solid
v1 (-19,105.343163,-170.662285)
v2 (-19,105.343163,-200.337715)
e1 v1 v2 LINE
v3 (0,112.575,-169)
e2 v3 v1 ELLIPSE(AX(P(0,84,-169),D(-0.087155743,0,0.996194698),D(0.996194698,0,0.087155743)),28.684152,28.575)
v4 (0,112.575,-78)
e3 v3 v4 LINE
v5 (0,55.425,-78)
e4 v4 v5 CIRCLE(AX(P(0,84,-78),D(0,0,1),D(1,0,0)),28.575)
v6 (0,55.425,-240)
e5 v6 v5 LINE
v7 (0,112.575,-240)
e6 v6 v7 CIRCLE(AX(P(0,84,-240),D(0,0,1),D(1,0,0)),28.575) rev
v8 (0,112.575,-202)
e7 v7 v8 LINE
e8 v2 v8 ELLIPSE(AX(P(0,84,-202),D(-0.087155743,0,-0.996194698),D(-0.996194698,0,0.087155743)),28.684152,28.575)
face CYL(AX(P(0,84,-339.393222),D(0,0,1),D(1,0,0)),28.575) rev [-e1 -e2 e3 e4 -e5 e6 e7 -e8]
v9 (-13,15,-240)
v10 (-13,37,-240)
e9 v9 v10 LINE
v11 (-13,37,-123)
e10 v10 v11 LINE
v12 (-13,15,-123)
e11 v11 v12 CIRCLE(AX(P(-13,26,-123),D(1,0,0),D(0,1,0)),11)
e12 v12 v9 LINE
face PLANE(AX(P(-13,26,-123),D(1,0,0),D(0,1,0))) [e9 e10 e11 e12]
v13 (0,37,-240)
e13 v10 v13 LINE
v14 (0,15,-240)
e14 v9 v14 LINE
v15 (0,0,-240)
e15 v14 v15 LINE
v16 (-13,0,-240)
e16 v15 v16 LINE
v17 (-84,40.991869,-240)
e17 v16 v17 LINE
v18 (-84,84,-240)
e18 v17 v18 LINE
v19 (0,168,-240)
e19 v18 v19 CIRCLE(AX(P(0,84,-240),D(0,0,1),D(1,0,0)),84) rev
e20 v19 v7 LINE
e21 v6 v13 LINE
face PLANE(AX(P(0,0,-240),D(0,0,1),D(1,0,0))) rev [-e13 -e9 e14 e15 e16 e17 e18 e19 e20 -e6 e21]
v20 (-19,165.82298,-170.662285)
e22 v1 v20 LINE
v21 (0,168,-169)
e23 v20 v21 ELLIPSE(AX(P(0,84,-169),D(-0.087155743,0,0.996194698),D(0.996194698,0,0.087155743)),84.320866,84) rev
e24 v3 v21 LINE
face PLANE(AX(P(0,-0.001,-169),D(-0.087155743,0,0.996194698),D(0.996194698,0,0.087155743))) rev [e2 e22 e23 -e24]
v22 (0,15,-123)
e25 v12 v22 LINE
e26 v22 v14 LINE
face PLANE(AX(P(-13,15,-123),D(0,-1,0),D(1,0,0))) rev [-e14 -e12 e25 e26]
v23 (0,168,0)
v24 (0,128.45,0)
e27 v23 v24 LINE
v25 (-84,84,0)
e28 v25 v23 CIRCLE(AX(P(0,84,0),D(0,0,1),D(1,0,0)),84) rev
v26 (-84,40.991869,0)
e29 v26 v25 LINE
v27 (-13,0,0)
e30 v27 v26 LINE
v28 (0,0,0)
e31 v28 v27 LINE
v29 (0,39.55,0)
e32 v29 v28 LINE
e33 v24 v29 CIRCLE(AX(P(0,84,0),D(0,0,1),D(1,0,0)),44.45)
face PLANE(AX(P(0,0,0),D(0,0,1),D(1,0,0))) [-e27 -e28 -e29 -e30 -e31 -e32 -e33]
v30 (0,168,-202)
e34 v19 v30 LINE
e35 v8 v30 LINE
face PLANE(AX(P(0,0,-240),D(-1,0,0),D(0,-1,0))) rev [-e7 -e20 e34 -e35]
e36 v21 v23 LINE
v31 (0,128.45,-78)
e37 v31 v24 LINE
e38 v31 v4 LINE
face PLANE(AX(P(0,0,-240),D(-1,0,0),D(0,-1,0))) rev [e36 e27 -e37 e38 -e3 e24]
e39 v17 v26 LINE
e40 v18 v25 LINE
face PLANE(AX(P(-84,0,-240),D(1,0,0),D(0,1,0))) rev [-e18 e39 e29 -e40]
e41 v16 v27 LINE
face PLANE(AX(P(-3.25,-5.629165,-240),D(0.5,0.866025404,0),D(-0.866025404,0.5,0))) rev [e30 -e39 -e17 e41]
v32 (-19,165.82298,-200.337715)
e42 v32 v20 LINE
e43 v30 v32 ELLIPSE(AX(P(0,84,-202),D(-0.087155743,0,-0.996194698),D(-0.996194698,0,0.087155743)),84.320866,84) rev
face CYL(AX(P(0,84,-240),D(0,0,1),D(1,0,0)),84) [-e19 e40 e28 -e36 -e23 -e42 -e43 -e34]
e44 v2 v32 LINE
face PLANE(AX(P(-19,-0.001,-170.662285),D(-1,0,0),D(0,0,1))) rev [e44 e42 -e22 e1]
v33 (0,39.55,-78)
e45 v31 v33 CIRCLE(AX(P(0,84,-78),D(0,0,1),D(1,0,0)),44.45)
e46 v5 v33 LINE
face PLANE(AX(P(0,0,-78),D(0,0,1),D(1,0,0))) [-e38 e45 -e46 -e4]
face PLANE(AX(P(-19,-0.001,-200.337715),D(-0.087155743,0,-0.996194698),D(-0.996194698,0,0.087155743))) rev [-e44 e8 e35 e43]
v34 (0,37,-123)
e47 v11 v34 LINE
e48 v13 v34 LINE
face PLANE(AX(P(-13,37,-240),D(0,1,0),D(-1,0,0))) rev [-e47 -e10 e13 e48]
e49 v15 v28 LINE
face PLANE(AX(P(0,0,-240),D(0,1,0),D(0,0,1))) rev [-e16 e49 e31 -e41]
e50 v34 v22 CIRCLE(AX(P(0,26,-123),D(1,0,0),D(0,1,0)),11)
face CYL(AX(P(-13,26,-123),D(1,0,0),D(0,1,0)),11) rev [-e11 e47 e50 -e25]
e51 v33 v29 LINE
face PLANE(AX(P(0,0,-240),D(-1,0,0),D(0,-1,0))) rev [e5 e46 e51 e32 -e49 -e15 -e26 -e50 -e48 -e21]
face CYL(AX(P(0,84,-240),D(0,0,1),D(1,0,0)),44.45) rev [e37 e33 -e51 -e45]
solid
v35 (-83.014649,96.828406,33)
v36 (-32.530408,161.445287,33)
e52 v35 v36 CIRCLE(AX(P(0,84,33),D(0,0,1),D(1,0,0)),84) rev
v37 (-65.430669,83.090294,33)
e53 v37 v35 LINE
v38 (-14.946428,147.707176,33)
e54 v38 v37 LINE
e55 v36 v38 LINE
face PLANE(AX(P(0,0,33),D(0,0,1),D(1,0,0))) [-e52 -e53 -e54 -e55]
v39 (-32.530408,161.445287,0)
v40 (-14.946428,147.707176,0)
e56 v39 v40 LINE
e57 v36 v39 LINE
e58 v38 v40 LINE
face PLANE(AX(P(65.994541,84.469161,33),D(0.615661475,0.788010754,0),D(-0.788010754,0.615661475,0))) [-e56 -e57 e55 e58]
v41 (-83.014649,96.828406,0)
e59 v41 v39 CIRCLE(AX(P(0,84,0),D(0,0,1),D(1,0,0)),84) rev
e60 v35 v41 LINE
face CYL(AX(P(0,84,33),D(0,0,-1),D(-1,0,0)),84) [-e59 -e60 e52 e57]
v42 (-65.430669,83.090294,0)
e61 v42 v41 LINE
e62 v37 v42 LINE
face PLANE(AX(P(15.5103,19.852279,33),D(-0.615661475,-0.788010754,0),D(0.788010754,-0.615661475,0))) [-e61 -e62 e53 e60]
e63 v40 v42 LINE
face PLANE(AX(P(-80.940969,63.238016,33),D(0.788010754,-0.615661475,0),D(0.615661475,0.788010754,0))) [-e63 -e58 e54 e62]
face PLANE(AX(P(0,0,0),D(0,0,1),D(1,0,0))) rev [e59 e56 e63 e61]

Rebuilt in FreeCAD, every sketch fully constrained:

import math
import FreeCAD as App
import Part
import Sketcher
from FreeCAD import Vector
Q = App.Units.Quantity

doc = App.newDocument("Part")
params = doc.addObject("Spreadsheet::Sheet", "Params")
for row, (alias, value) in enumerate([
    ("sketch1_radius", "84 mm"),
    ("sketch1_length", "82 mm"),
    ("pad1_length", "33 mm"),
    ("sketch2_radius", "84 mm"),
    ("sketch2_width", "13 mm"),
    ("sketch2_radius2", "44.45 mm"),
    ("pad2_length", "240 mm"),
    ("sketch3_radius", "84 mm"),
    ("sketch3_width", "13 mm"),
    ("pad3_length", "162 mm"),
    ("sketch4_radius", "11 mm"),
    ("sketch4_height", "117 mm"),
    ("pocket1_length", "13 mm"),
    ("sketch5_height", "33 mm"),
    ("pocket2_length", "62.656837 mm"),
], start=1):
    params.set(f"A{row}", alias)
    params.set(f"B{row}", "=" + value)
    params.setAlias(f"B{row}", alias)

body = doc.addObject("PartDesign::Body", "Body")

# Sketch on XY plane
sketch1 = doc.addObject("Sketcher::SketchObject", "Sketch")
body.addObject(sketch1)
sketch1.AttachmentSupport = (doc.XY_Plane, [""])
sketch1.MapMode = "FlatFace"
sketch1.addGeometry(Part.ArcOfCircle(Part.Circle(Vector(0, 84, 0), Vector(0, 0, 1), 84), math.radians(112.784536), math.radians(171.215464)), False)
sketch1.addGeometry(Part.LineSegment(Vector(-83.014649, 96.828406, 0), Vector(-65.430669, 83.090294, 0)), False)
sketch1.addGeometry(Part.LineSegment(Vector(-65.430669, 83.090294, 0), Vector(-14.946428, 147.707176, 0)), False)
sketch1.addGeometry(Part.LineSegment(Vector(-14.946428, 147.707176, 0), Vector(-32.530408, 161.445287, 0)), False)
sketch1.addConstraint(Sketcher.Constraint("Coincident", 0, 2, 1, 1))
sketch1.addConstraint(Sketcher.Constraint("Coincident", 1, 2, 2, 1))
sketch1.addConstraint(Sketcher.Constraint("Coincident", 2, 2, 3, 1))
sketch1.addConstraint(Sketcher.Constraint("Coincident", 3, 2, 0, 1))
sketch1.addConstraint(Sketcher.Constraint("PointOnObject", 0, 3, -2))
sketch1.addConstraint(Sketcher.Constraint("Perpendicular", 1, 2))
sketch1.addConstraint(Sketcher.Constraint("Perpendicular", 2, 3))
sketch1.addConstraint(Sketcher.Constraint("Equal", 1, 3))
sketch1.addConstraint(Sketcher.Constraint("Radius", 0, 84.0))
sketch1.addConstraint(Sketcher.Constraint("Angle", 1, Q("-38 deg")))
sketch1.addConstraint(Sketcher.Constraint("Distance", 2, 82.0))
sketch1.addConstraint(Sketcher.Constraint("DistanceY", -1, 1, 0, 3, 84.0))
sketch1.addConstraint(Sketcher.Constraint("Distance", 1, 22.314391))
sketch1.setExpression("Constraints[8]", "Params.sketch1_radius")
sketch1.setExpression("Constraints[10]", "Params.sketch1_length")
pad1 = doc.addObject("PartDesign::Pad", "Pad")
body.addObject(pad1)
pad1.Profile = sketch1
pad1.setExpression("Length", "Params.pad1_length")
body2 = doc.addObject("PartDesign::Body", "Body001")

# Sketch on XY plane
sketch2 = doc.addObject("Sketcher::SketchObject", "Sketch001")
body2.addObject(sketch2)
sketch2.AttachmentSupport = (doc.getObject("XY_Plane001"), [""])
sketch2.MapMode = "FlatFace"
sketch2.addGeometry(Part.LineSegment(Vector(-13, 0, 0), Vector(0, 0, 0)), False)
sketch2.addGeometry(Part.LineSegment(Vector(0, 0, 0), Vector(0, 39.55, 0)), False)
sketch2.addGeometry(Part.ArcOfCircle(Part.Circle(Vector(0, 84, 0), Vector(0, 0, 1), 44.45), math.radians(90), math.radians(270)), False)
sketch2.addGeometry(Part.LineSegment(Vector(0, 128.45, 0), Vector(0, 168, 0)), False)
sketch2.addGeometry(Part.ArcOfCircle(Part.Circle(Vector(0, 84, 0), Vector(0, 0, 1), 84), math.radians(90), math.radians(180)), False)
sketch2.addGeometry(Part.LineSegment(Vector(-84, 84, 0), Vector(-84, 40.991869, 0)), False)
sketch2.addGeometry(Part.LineSegment(Vector(-84, 40.991869, 0), Vector(-13, 0, 0)), False)
sketch2.addConstraint(Sketcher.Constraint("Coincident", 0, 2, 1, 1))
sketch2.addConstraint(Sketcher.Constraint("Coincident", 1, 2, 2, 2))
sketch2.addConstraint(Sketcher.Constraint("Coincident", 2, 1, 3, 1))
sketch2.addConstraint(Sketcher.Constraint("Coincident", 3, 2, 4, 1))
sketch2.addConstraint(Sketcher.Constraint("Tangent", 4, 2, 5, 1))
sketch2.addConstraint(Sketcher.Constraint("Coincident", 5, 2, 6, 1))
sketch2.addConstraint(Sketcher.Constraint("Coincident", 6, 2, 0, 1))
sketch2.addConstraint(Sketcher.Constraint("Horizontal", 0))
sketch2.addConstraint(Sketcher.Constraint("Vertical", 1))
sketch2.addConstraint(Sketcher.Constraint("Vertical", 3))
sketch2.addConstraint(Sketcher.Constraint("Vertical", 5))
sketch2.addConstraint(Sketcher.Constraint("Coincident", 0, 2, -1, 1))
sketch2.addConstraint(Sketcher.Constraint("Coincident", 4, 3, 2, 3))
sketch2.addConstraint(Sketcher.Constraint("PointOnObject", 2, 3, -2))
sketch2.addConstraint(Sketcher.Constraint("PointOnObject", 2, 1, -2))
sketch2.addConstraint(Sketcher.Constraint("Equal", 1, 3))
sketch2.addConstraint(Sketcher.Constraint("Radius", 4, 84.0))
sketch2.addConstraint(Sketcher.Constraint("DistanceX", 0, 1, 0, 2, 13.0))
sketch2.addConstraint(Sketcher.Constraint("Angle", 6, Q("-30 deg")))
sketch2.addConstraint(Sketcher.Constraint("Radius", 2, 44.45))
sketch2.setExpression("Constraints[16]", "Params.sketch2_radius")
sketch2.setExpression("Constraints[17]", "Params.sketch2_width")
sketch2.setExpression("Constraints[19]", "Params.sketch2_radius2")
pad2 = doc.addObject("PartDesign::Pad", "Pad001")
body2.addObject(pad2)
pad2.Profile = sketch2
pad2.setExpression("Length", "Params.pad2_length")
pad2.Reversed = True

# Sketch on XY plane
sketch3 = doc.addObject("Sketcher::SketchObject", "Sketch002")
body2.addObject(sketch3)
sketch3.AttachmentSupport = (doc.getObject("XY_Plane001"), [""])
sketch3.MapMode = "FlatFace"
sketch3.AttachmentOffset = App.Placement(Vector(0, 0, -78), App.Rotation())
sketch3.addGeometry(Part.LineSegment(Vector(-13, 0, 0), Vector(0, 0, 0)), False)
sketch3.addGeometry(Part.LineSegment(Vector(0, 0, 0), Vector(0, 55.425, 0)), False)
sketch3.addGeometry(Part.ArcOfCircle(Part.Circle(Vector(0, 84, 0), Vector(0, 0, 1), 28.575), math.radians(90), math.radians(270)), False)
sketch3.addGeometry(Part.LineSegment(Vector(0, 112.575, 0), Vector(0, 168, 0)), False)
sketch3.addGeometry(Part.ArcOfCircle(Part.Circle(Vector(0, 84, 0), Vector(0, 0, 1), 84), math.radians(90), math.radians(180)), False)
sketch3.addGeometry(Part.LineSegment(Vector(-84, 84, 0), Vector(-84, 40.991869, 0)), False)
sketch3.addGeometry(Part.LineSegment(Vector(-84, 40.991869, 0), Vector(-13, 0, 0)), False)
sketch3.addConstraint(Sketcher.Constraint("Coincident", 0, 2, 1, 1))
sketch3.addConstraint(Sketcher.Constraint("Coincident", 1, 2, 2, 2))
sketch3.addConstraint(Sketcher.Constraint("Coincident", 2, 1, 3, 1))
sketch3.addConstraint(Sketcher.Constraint("Coincident", 3, 2, 4, 1))
sketch3.addConstraint(Sketcher.Constraint("Tangent", 4, 2, 5, 1))
sketch3.addConstraint(Sketcher.Constraint("Coincident", 5, 2, 6, 1))
sketch3.addConstraint(Sketcher.Constraint("Coincident", 6, 2, 0, 1))
sketch3.addConstraint(Sketcher.Constraint("Horizontal", 0))
sketch3.addConstraint(Sketcher.Constraint("Vertical", 1))
sketch3.addConstraint(Sketcher.Constraint("Vertical", 3))
sketch3.addConstraint(Sketcher.Constraint("Vertical", 5))
sketch3.addConstraint(Sketcher.Constraint("Coincident", 0, 2, -1, 1))
sketch3.addConstraint(Sketcher.Constraint("Coincident", 4, 3, 2, 3))
sketch3.addConstraint(Sketcher.Constraint("PointOnObject", 2, 3, -2))
sketch3.addConstraint(Sketcher.Constraint("PointOnObject", 2, 1, -2))
sketch3.addConstraint(Sketcher.Constraint("Equal", 1, 3))
sketch3.addConstraint(Sketcher.Constraint("Radius", 4, 84.0))
sketch3.addConstraint(Sketcher.Constraint("DistanceX", 0, 1, 0, 2, 13.0))
sketch3.addConstraint(Sketcher.Constraint("Angle", 6, Q("-30 deg")))
sketch3.addConstraint(Sketcher.Constraint("Radius", 2, 28.575))
sketch3.setExpression("Constraints[16]", "Params.sketch3_radius")
sketch3.setExpression("Constraints[17]", "Params.sketch3_width")
pad3 = doc.addObject("PartDesign::Pad", "Pad002")
body2.addObject(pad3)
pad3.Profile = sketch3
pad3.setExpression("Length", "Params.pad3_length")
pad3.Reversed = True

# Sketch on YZ plane
sketch4 = doc.addObject("Sketcher::SketchObject", "Sketch003")
body2.addObject(sketch4)
sketch4.AttachmentSupport = (doc.getObject("YZ_Plane001"), [""])
sketch4.MapMode = "FlatFace"
sketch4.addGeometry(Part.LineSegment(Vector(37, -240, 0), Vector(37, -123, 0)), False)
sketch4.addGeometry(Part.ArcOfCircle(Part.Circle(Vector(26, -123, 0), Vector(0, 0, 1), 11), math.radians(0), math.radians(180)), False)
sketch4.addGeometry(Part.LineSegment(Vector(15, -123, 0), Vector(15, -240, 0)), False)
sketch4.addGeometry(Part.LineSegment(Vector(15, -240, 0), Vector(37, -240, 0)), False)
sketch4.addConstraint(Sketcher.Constraint("Tangent", 0, 2, 1, 1))
sketch4.addConstraint(Sketcher.Constraint("Tangent", 1, 2, 2, 1))
sketch4.addConstraint(Sketcher.Constraint("Coincident", 2, 2, 3, 1))
sketch4.addConstraint(Sketcher.Constraint("Coincident", 3, 2, 0, 1))
sketch4.addConstraint(Sketcher.Constraint("Vertical", 0))
sketch4.addConstraint(Sketcher.Constraint("Vertical", 2))
sketch4.addConstraint(Sketcher.Constraint("Horizontal", 3))
sketch4.addConstraint(Sketcher.Constraint("Radius", 1, 11.0))
sketch4.addConstraint(Sketcher.Constraint("DistanceY", 0, 1, 0, 2, 117.0))
sketch4.addConstraint(Sketcher.Constraint("DistanceX", -1, 1, 1, 3, 26.0))
sketch4.addConstraint(Sketcher.Constraint("DistanceY", 1, 3, -1, 1, 123.0))
sketch4.setExpression("Constraints[7]", "Params.sketch4_radius")
sketch4.setExpression("Constraints[8]", "Params.sketch4_height")
pocket1 = doc.addObject("PartDesign::Pocket", "Pocket")
body2.addObject(pocket1)
pocket1.Profile = sketch4
pocket1.setExpression("Length", "Params.pocket1_length")

# Sketch on XZ plane
sketch5 = doc.addObject("Sketcher::SketchObject", "Sketch004")
body2.addObject(sketch5)
sketch5.AttachmentSupport = (doc.getObject("XZ_Plane001"), [""])
sketch5.MapMode = "FlatFace"
sketch5.AttachmentOffset = App.Placement(Vector(0, 0, -105.343163), App.Rotation())
sketch5.addGeometry(Part.LineSegment(Vector(-19, -170.662285, 0), Vector(0, -169, 0)), False)
sketch5.addGeometry(Part.LineSegment(Vector(0, -169, 0), Vector(0, -202, 0)), False)
sketch5.addGeometry(Part.LineSegment(Vector(0, -202, 0), Vector(-19, -200.337715, 0)), False)
sketch5.addGeometry(Part.LineSegment(Vector(-19, -200.337715, 0), Vector(-19, -170.662285, 0)), False)
sketch5.addConstraint(Sketcher.Constraint("Coincident", 0, 2, 1, 1))
sketch5.addConstraint(Sketcher.Constraint("Coincident", 1, 2, 2, 1))
sketch5.addConstraint(Sketcher.Constraint("Coincident", 2, 2, 3, 1))
sketch5.addConstraint(Sketcher.Constraint("Coincident", 3, 2, 0, 1))
sketch5.addConstraint(Sketcher.Constraint("Vertical", 1))
sketch5.addConstraint(Sketcher.Constraint("Vertical", 3))
sketch5.addConstraint(Sketcher.Constraint("PointOnObject", 0, 2, -2))
sketch5.addConstraint(Sketcher.Constraint("Equal", 0, 2))
sketch5.addConstraint(Sketcher.Constraint("DistanceY", 1, 2, 1, 1, 33.0))
sketch5.addConstraint(Sketcher.Constraint("Angle", 0, Q("5 deg")))
sketch5.addConstraint(Sketcher.Constraint("DistanceY", 0, 2, -1, 1, 169.0))
sketch5.addConstraint(Sketcher.Constraint("DistanceX", 2, 2, -1, 1, 19.0))
sketch5.setExpression("Constraints[8]", "Params.sketch5_height")
pocket2 = doc.addObject("PartDesign::Pocket", "Pocket001")
body2.addObject(pocket2)
pocket2.Profile = sketch5
pocket2.setExpression("Length", "Params.pocket2_length")

doc.recompute()
